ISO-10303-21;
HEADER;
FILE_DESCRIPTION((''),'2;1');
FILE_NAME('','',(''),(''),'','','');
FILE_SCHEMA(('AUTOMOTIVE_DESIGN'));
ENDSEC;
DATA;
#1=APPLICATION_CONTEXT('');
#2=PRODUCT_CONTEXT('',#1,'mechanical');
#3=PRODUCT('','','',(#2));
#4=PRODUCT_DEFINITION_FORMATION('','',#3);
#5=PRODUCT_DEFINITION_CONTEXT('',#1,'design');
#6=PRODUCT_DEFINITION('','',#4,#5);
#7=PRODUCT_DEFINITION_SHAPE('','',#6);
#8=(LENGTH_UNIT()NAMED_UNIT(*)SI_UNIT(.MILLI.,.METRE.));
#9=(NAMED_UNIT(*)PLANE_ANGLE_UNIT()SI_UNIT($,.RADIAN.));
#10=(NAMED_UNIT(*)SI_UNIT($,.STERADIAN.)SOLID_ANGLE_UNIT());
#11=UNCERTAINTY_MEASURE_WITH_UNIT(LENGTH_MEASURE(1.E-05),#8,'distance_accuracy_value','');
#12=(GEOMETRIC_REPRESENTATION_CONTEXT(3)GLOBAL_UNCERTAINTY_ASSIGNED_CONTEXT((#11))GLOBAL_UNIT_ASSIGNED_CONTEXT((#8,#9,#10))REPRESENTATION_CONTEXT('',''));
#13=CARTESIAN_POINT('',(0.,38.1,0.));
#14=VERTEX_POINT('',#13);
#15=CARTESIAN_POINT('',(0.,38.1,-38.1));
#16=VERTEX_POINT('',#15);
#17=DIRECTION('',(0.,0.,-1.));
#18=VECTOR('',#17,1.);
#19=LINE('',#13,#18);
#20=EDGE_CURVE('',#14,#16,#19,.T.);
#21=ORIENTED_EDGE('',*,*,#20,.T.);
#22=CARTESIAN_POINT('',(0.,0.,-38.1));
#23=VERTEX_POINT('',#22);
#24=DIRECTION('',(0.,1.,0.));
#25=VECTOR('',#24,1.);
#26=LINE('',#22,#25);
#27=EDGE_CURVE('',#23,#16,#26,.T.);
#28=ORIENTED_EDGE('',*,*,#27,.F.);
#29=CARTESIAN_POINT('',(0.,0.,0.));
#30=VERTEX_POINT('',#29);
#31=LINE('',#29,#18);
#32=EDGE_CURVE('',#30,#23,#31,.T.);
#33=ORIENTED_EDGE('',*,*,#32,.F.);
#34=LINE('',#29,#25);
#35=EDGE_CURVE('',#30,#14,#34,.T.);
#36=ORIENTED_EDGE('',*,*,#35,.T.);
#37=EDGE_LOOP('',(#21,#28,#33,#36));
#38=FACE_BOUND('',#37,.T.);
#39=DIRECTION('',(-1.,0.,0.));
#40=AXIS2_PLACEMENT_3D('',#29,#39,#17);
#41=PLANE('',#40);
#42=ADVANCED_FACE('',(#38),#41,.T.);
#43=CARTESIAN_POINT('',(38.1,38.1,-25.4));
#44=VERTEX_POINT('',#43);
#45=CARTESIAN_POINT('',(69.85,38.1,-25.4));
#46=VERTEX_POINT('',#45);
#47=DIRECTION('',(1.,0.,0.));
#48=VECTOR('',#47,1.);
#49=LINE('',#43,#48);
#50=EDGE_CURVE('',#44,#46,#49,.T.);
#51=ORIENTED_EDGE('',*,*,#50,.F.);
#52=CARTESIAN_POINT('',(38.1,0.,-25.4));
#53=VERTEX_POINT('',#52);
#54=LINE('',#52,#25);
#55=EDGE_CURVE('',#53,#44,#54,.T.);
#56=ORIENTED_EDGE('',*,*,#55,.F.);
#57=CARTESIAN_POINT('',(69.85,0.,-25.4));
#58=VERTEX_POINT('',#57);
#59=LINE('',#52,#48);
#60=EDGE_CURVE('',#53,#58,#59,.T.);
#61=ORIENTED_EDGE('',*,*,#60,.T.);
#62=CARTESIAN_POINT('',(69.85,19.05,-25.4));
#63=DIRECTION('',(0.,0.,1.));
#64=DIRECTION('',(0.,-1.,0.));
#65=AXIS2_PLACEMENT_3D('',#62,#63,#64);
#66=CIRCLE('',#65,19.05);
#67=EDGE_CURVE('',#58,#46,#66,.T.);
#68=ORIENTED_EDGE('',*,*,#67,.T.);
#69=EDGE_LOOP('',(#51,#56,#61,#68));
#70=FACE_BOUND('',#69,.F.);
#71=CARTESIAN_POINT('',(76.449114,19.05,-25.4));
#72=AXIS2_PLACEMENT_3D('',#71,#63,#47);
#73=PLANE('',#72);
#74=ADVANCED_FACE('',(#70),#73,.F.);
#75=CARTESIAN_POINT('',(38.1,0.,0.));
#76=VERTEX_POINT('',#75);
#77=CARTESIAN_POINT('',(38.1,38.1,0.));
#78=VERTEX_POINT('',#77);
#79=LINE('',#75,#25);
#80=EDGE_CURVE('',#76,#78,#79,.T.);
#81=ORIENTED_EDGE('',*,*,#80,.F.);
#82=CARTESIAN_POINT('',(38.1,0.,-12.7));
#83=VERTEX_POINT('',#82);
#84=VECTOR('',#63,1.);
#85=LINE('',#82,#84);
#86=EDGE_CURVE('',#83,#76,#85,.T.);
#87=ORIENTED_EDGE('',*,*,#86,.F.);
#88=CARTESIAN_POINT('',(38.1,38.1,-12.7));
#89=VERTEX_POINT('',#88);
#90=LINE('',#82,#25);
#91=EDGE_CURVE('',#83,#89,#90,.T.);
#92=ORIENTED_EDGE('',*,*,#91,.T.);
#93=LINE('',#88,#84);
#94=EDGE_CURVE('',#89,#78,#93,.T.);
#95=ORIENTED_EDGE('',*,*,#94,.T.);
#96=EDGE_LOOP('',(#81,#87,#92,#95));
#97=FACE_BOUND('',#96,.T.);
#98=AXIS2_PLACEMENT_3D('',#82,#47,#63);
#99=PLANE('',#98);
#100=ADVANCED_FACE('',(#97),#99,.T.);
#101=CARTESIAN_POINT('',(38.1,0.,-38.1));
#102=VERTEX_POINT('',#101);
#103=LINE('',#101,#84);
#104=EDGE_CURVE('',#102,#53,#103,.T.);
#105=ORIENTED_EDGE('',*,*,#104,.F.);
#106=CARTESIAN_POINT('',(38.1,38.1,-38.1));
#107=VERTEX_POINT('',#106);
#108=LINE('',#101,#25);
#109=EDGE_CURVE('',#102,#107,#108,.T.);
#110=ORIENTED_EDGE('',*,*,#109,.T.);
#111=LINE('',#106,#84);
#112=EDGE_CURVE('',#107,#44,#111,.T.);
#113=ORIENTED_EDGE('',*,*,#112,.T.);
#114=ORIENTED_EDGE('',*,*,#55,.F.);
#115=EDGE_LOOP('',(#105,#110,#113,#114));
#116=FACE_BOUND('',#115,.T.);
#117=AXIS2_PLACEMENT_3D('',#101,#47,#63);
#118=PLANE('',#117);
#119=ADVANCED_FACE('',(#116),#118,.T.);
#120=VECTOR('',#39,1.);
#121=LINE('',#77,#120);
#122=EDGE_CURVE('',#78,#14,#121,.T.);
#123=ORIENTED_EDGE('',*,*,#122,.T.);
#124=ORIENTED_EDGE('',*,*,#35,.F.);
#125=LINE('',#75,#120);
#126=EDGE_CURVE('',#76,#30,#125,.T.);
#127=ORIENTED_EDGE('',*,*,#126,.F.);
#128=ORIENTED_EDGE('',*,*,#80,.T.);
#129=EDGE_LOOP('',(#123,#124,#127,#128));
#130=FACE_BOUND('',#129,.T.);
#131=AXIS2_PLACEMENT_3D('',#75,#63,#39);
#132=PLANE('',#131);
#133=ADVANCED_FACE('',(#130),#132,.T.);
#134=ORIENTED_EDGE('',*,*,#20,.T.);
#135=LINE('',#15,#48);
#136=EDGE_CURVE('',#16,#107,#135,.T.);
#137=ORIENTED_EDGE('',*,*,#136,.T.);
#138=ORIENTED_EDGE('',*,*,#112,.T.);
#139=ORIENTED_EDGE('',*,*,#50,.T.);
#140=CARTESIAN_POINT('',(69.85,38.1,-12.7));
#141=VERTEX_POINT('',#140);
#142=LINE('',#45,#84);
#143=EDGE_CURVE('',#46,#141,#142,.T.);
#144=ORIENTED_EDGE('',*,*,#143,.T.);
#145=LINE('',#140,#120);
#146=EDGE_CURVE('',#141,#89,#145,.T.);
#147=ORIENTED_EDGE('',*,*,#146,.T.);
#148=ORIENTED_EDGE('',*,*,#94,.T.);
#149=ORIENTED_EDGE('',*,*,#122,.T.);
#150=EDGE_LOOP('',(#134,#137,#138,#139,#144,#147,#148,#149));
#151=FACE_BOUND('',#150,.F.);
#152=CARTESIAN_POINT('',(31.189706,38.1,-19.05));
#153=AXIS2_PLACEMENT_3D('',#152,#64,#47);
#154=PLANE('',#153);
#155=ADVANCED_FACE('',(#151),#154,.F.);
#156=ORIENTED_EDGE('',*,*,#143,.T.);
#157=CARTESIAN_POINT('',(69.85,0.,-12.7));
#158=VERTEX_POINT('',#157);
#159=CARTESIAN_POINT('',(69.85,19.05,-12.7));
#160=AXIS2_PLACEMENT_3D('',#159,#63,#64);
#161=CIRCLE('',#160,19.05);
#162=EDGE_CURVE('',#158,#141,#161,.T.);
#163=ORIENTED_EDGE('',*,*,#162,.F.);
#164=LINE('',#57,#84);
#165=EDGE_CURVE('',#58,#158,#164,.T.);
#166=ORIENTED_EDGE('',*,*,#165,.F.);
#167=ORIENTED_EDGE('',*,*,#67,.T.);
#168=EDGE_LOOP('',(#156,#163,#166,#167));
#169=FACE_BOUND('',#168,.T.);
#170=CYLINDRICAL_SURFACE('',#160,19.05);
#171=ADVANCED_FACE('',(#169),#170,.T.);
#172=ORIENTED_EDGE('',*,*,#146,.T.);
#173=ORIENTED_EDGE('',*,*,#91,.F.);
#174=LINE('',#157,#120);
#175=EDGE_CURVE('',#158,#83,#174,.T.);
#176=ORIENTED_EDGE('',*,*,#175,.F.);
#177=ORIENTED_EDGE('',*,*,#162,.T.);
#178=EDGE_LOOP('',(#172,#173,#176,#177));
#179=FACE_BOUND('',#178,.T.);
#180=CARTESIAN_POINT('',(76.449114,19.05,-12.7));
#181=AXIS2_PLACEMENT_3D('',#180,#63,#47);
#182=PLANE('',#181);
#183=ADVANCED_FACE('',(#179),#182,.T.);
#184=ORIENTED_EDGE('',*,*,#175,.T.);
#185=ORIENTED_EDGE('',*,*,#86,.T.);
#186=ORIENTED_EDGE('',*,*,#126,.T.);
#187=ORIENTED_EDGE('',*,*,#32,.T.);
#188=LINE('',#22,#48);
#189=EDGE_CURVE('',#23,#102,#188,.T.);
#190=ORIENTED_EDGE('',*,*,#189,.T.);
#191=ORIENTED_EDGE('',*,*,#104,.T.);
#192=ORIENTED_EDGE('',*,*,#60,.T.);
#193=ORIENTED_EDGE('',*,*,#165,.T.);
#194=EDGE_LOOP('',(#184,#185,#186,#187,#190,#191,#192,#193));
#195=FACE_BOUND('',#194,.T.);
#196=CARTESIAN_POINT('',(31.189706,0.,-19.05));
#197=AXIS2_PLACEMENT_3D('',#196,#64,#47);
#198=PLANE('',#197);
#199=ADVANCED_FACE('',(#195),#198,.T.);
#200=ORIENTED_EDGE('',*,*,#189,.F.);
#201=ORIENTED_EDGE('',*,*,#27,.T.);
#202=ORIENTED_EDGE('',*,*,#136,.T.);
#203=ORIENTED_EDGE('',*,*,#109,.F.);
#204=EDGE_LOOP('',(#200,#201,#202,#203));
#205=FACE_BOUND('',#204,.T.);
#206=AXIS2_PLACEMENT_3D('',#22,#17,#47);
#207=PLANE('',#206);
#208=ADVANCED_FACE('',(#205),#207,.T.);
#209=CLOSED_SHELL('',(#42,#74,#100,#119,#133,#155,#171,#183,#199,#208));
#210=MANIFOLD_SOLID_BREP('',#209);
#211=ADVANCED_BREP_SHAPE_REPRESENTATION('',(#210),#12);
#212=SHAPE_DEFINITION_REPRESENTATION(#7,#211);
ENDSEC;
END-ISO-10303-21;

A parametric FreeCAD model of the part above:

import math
import FreeCAD as App
import Part
import Sketcher
Q = App.Units.Quantity

doc = App.newDocument("Part")
params = doc.addObject("Spreadsheet::Sheet", "Params")
for row, (alias, value) in enumerate([
    ("sketch1_width", "1.5 in"),
    ("sketch1_width2", "1.25 in"),
    ("pad1_length", "1.5 in"),
    ("sketch2_radius", "0.75 in"),
    ("pad2_length", "0.5 in"),
], start=1):
    params.set(f"A{row}", alias)
    params.set(f"B{row}", "=" + value)
    params.setAlias(f"B{row}", alias)

body = doc.addObject("PartDesign::Body", "Body")

# Sketch on XZ plane
sketch1 = body.newObject("Sketcher::SketchObject", "Sketch")
sketch1.AttachmentSupport = (doc.getObject("XZ_Plane"), [""])
sketch1.MapMode = "FlatFace"
sketch1.addGeometry([
    Part.LineSegment(App.Vector(38, 0, 0), App.Vector(0, 0, 0)),  # 0
    Part.LineSegment(App.Vector(0, 0, 0), App.Vector(0, -38, 0)),  # 1
    Part.LineSegment(App.Vector(0, -38, 0), App.Vector(38, -38, 0)),  # 2
    Part.LineSegment(App.Vector(38, -38, 0), App.Vector(38, -25, 0)),  # 3
    Part.LineSegment(App.Vector(38, -25, 0), App.Vector(70, -25, 0)),  # 4
    Part.LineSegment(App.Vector(70, -25, 0), App.Vector(70, -13, 0)),  # 5
    Part.LineSegment(App.Vector(70, -13, 0), App.Vector(38, -13, 0)),  # 6
    Part.LineSegment(App.Vector(38, -13, 0), App.Vector(38, 0, 0)),  # 7
], False)
sketch1.addConstraint([
    Sketcher.Constraint("Coincident", 0, 2, 1, 1),
    Sketcher.Constraint("Coincident", 1, 2, 2, 1),
    Sketcher.Constraint("Coincident", 2, 2, 3, 1),
    Sketcher.Constraint("Coincident", 3, 2, 4, 1),
    Sketcher.Constraint("Coincident", 4, 2, 5, 1),
    Sketcher.Constraint("Coincident", 5, 2, 6, 1),
    Sketcher.Constraint("Coincident", 6, 2, 7, 1),
    Sketcher.Constraint("Coincident", 7, 2, 0, 1),
    Sketcher.Constraint("Horizontal", 0),
    Sketcher.Constraint("Vertical", 1),
    Sketcher.Constraint("Horizontal", 2),
    Sketcher.Constraint("Vertical", 3),
    Sketcher.Constraint("Horizontal", 4),
    Sketcher.Constraint("Vertical", 5),
    Sketcher.Constraint("Horizontal", 6),
    Sketcher.Constraint("Vertical", 7),
    Sketcher.Constraint("Coincident", 0, 2, -1, 1),
    Sketcher.Constraint("Vertical", 3, 2, 6, 2),
    Sketcher.Constraint("Equal", 2, 1),
    Sketcher.Constraint("Equal", 3, 5),
    Sketcher.Constraint("Equal", 5, 7),
    Sketcher.Constraint("DistanceX", 0, 2, 0, 1, Q("1.5 in")),
    Sketcher.Constraint("DistanceX", 4, 1, 4, 2, Q("1.25 in")),
])
sketch1.setExpression("Constraints[21]", "Params.sketch1_width")
sketch1.setExpression("Constraints[22]", "Params.sketch1_width2")
pad1 = body.newObject("PartDesign::Pad", "Pad")
pad1.Profile = sketch1
pad1.setExpression("Length", "Params.pad1_length")
pad1.Reversed = True

# Sketch on XY plane
sketch2 = body.newObject("Sketcher::SketchObject", "Sketch001")
sketch2.AttachmentSupport = (doc.getObject("XY_Plane"), [""])
sketch2.MapMode = "FlatFace"
sketch2.AttachmentOffset = App.Placement(App.Vector(0, 0, -0.5 * 25.4), App.Rotation())
sketch2.addGeometry([
    Part.LineSegment(App.Vector(70, 38, 0), App.Vector(70, 0, 0)),
    Part.ArcOfCircle(Part.Circle(App.Vector(70, 19, 0), App.Vector(0, 0, 1), 19), math.radians(-90), math.radians(90)),
], False)
sketch2.addConstraint([
    Sketcher.Constraint("Coincident", 0, 1, 1, 2),
    Sketcher.Constraint("Coincident", 1, 1, 0, 2),
    Sketcher.Constraint("Vertical", 0),
    Sketcher.Constraint("PointOnObject", 1, 1, -1),
    Sketcher.Constraint("Vertical", 1, 3, 0, 1),
    Sketcher.Constraint("Radius", 1, Q("0.75 in")),
    Sketcher.Constraint("DistanceX", -1, 1, 1, 3, Q("2.75 in")),
])
sketch2.setExpression("Constraints[5]", "Params.sketch2_radius")
pad2 = body.newObject("PartDesign::Pad", "Pad001")
pad2.Profile = sketch2
pad2.setExpression("Length", "Params.pad2_length")
pad2.Reversed = True

doc.recompute()
